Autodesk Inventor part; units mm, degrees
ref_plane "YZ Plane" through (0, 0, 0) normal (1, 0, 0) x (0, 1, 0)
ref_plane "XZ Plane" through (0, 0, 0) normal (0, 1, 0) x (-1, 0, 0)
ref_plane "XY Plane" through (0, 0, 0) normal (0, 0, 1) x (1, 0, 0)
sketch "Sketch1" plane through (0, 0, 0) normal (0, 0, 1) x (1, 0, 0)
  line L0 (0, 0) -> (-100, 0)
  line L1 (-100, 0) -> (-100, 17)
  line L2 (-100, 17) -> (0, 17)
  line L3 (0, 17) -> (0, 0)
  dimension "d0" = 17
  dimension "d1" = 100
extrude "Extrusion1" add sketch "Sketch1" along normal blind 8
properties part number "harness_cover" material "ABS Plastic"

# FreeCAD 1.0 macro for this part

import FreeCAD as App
import Part
import Sketcher

V = App.Vector

doc = App.newDocument("Part")
params = doc.addObject("Spreadsheet::Sheet", "Params")
for row, (alias, value) in enumerate([
    ("sketch1_width", "100 mm"),
    ("sketch1_height", "17 mm"),
    ("pad1_length", "8 mm"),
], start=1):
    params.set(f"A{row}", alias)
    params.set(f"B{row}", "=" + value)
    params.setAlias(f"B{row}", alias)

body = doc.addObject("PartDesign::Body", "Body")

sketch1 = body.newObject("Sketcher::SketchObject", "Sketch")
sketch1.AttachmentSupport = (doc.getObject("XY_Plane"), [""])
sketch1.MapMode = "FlatFace"
sketch1.addGeometry([
    Part.LineSegment(V(-100, 0, 0), V(0, 0, 0)),
    Part.LineSegment(V(0, 0, 0), V(0, 17, 0)),
    Part.LineSegment(V(0, 17, 0), V(-100, 17, 0)),
    Part.LineSegment(V(-100, 17, 0), V(-100, 0, 0)),
], False)
sketch1.addConstraint([
    Sketcher.Constraint("Coincident", 0, 2, 1, 1),
    Sketcher.Constraint("Coincident", 1, 2, 2, 1),
    Sketcher.Constraint("Coincident", 2, 2, 3, 1),
    Sketcher.Constraint("Coincident", 3, 2, 0, 1),
    Sketcher.Constraint("Horizontal", 0),
    Sketcher.Constraint("Vertical", 1),
    Sketcher.Constraint("Horizontal", 2),
    Sketcher.Constraint("Vertical", 3),
    Sketcher.Constraint("Coincident", 0, 2, -1, 1),
    Sketcher.Constraint("DistanceX", 0, 1, 0, 2, 100.0),
    Sketcher.Constraint("DistanceY", 1, 1, 1, 2, 17.0),
])
sketch1.setExpression("Constraints[9]", "Params.sketch1_width")
sketch1.setExpression("Constraints[10]", "Params.sketch1_height")
pad1 = body.newObject("PartDesign::Pad", "Pad")
pad1.Profile = sketch1
pad1.setExpression("Length", "Params.pad1_length")

doc.recompute()
